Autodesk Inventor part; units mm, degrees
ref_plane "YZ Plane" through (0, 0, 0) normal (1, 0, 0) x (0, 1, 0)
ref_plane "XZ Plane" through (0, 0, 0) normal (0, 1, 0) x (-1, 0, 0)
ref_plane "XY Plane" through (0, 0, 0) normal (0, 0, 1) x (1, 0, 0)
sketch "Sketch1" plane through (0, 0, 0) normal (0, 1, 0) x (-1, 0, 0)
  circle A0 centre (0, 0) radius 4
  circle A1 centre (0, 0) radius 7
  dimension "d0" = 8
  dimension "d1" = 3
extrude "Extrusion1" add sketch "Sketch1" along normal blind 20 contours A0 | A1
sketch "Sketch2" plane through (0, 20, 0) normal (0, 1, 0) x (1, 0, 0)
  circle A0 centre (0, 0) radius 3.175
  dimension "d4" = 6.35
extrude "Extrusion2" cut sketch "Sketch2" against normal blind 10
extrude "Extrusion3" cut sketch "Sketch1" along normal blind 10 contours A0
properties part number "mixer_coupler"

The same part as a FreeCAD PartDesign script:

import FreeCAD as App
import Part
import Sketcher
from FreeCAD import Vector
Q = App.Units.Quantity

doc = App.newDocument("Part")
params = doc.addObject("Spreadsheet::Sheet", "Params")
for row, (alias, value) in enumerate([
    ("sketch1_diameter", "14 mm"),
    ("pad1_length", "20 mm"),
    ("sketch2_diameter", "6.35 mm"),
    ("pocket1_length", "10 mm"),
    ("sketch3_diameter", "8 mm"),
    ("pocket2_length", "10 mm"),
], start=1):
    params.set(f"A{row}", alias)
    params.set(f"B{row}", "=" + value)
    params.setAlias(f"B{row}", alias)

body = doc.addObject("PartDesign::Body", "Body")

# Sketch on XZ plane
sketch1 = doc.addObject("Sketcher::SketchObject", "Sketch")
body.addObject(sketch1)
sketch1.AttachmentSupport = (doc.XZ_Plane, [""])
sketch1.MapMode = "FlatFace"
sketch1.addGeometry(Part.Circle(Vector(0, 0, 0), Vector(0, 0, 1), 7), False)
sketch1.addConstraint(Sketcher.Constraint("Coincident", 0, 3, -1, 1))
sketch1.addConstraint(Sketcher.Constraint("Diameter", 0, Q("14 mm")))
sketch1.setExpression("Constraints[1]", "Params.sketch1_diameter")
pad1 = doc.addObject("PartDesign::Pad", "Pad")
body.addObject(pad1)
pad1.Profile = sketch1
pad1.setExpression("Length", "Params.pad1_length")
pad1.Reversed = True

# Sketch on XZ plane
sketch2 = doc.addObject("Sketcher::SketchObject", "Sketch001")
body.addObject(sketch2)
sketch2.AttachmentSupport = (doc.XZ_Plane, [""])
sketch2.MapMode = "FlatFace"
sketch2.AttachmentOffset = App.Placement(Vector(0, 0, -20), App.Rotation())
sketch2.addGeometry(Part.Circle(Vector(0, 0, 0), Vector(0, 0, 1), 3.175), False)
sketch2.addConstraint(Sketcher.Constraint("Coincident", 0, 3, -1, 1))
sketch2.addConstraint(Sketcher.Constraint("Diameter", 0, Q("6.35 mm")))
sketch2.setExpression("Constraints[1]", "Params.sketch2_diameter")
pocket1 = doc.addObject("PartDesign::Pocket", "Pocket")
body.addObject(pocket1)
pocket1.Profile = sketch2
pocket1.setExpression("Length", "Params.pocket1_length")
pocket1.Reversed = True

# Sketch on XZ plane
sketch3 = doc.addObject("Sketcher::SketchObject", "Sketch002")
body.addObject(sketch3)
sketch3.AttachmentSupport = (doc.XZ_Plane, [""])
sketch3.MapMode = "FlatFace"
sketch3.addGeometry(Part.Circle(Vector(0, 0, 0), Vector(0, 0, 1), 4), False)
sketch3.addConstraint(Sketcher.Constraint("Coincident", 0, 3, -1, 1))
sketch3.addConstraint(Sketcher.Constraint("Diameter", 0, Q("8 mm")))
sketch3.setExpression("Constraints[1]", "Params.sketch3_diameter")
pocket2 = doc.addObject("PartDesign::Pocket", "Pocket001")
body.addObject(pocket2)
pocket2.Profile = sketch3
pocket2.setExpression("Length", "Params.pocket2_length")

doc.recompute()
